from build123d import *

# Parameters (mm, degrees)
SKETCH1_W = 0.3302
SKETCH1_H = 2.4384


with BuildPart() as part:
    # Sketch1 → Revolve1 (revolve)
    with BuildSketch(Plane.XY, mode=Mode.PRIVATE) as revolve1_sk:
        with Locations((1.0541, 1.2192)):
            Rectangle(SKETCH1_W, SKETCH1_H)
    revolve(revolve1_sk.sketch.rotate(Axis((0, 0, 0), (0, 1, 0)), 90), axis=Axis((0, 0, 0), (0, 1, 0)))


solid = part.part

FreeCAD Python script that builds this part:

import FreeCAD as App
import Part
import Sketcher
from FreeCAD import Vector
Q = App.Units.Quantity


def add_polygon(sketch, points):
    """Adds a closed chain of lines whose ends are joined by coincident constraints."""
    first, n = sketch.GeometryCount, len(points)
    for a, b in zip(points, points[1:] + points[:1]):
        sketch.addGeometry(Part.LineSegment(App.Vector(*a, 0), App.Vector(*b, 0)), False)
    for i in range(n):
        sketch.addConstraint(Sketcher.Constraint("Coincident", first + i, 2, first + (i + 1) % n, 1))

doc = App.newDocument("Part")
body = doc.addObject("PartDesign::Body", "Body")

# Sketch on XY plane
sketch1 = body.newObject("Sketcher::SketchObject", "Sketch")
sketch1.AttachmentSupport = (doc.getObject("XY_Plane"), [""])
sketch1.MapMode = "FlatFace"
add_polygon(sketch1, [(0.89, 2.44), (0.89, 0), (1.22, 0), (1.22, 2.44)])  # lines 0-3
sketch1.addConstraint([
    Sketcher.Constraint("Vertical", 0),
    Sketcher.Constraint("Horizontal", 1),
    Sketcher.Constraint("Vertical", 2),
    Sketcher.Constraint("Horizontal", 3),
    Sketcher.Constraint("PointOnObject", 0, 2, -1),
    Sketcher.Constraint("DistanceX", 1, 1, 1, 2, Q("0.013 in")),
    Sketcher.Constraint("DistanceY", 0, 2, 0, 1, Q("0.096 in")),
    Sketcher.Constraint("DistanceX", -1, 1, 0, 2, Q("0.035 in")),
])
revolution = body.newObject("PartDesign::Revolution", "Revolution")
revolution.Profile = sketch1
revolution.ReferenceAxis = (sketch1, ["V_Axis"])
revolution.Angle = 360

doc.recompute()
